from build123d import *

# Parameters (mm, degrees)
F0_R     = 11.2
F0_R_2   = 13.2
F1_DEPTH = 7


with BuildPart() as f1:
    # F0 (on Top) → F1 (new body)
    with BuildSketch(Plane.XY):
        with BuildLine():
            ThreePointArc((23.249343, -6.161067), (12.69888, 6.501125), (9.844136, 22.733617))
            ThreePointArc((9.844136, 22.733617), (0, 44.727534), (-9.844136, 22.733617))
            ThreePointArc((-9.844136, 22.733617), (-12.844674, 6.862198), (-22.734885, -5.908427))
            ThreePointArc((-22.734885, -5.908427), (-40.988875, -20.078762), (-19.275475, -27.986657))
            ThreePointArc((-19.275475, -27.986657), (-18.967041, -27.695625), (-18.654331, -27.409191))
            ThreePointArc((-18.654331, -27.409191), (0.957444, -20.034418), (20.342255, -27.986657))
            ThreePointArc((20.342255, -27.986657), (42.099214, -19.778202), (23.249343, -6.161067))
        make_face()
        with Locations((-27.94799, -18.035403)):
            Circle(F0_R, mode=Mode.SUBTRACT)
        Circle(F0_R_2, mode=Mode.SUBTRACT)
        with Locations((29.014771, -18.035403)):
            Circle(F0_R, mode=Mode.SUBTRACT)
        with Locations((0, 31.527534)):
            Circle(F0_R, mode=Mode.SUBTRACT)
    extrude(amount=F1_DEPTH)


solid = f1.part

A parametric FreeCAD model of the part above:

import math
import FreeCAD as App
import Part
import Sketcher
from FreeCAD import Vector

doc = App.newDocument("Part")
body = doc.addObject("PartDesign::Body", "Body")

sketch1 = body.newObject("Sketcher::SketchObject", "Sketch")
sketch1.AttachmentSupport = (doc.getObject("XY_Plane"), [""])
sketch1.MapMode = "FlatFace"
sketch1.addGeometry([
    Part.ArcOfCircle(Part.Circle(Vector(41.745122, 19.976645, 0), Vector(0, 0, 1), 32.019897), math.radians(175.060612), math.radians(234.715702)),
    Part.ArcOfCircle(Part.Circle(Vector(0, 31.527534, 0), Vector(0, 0, 1), 13.2), math.radians(-41.774903), math.radians(221.774903)),
    Part.ArcOfCircle(Part.Circle(Vector(-44.335074, 21.03489, 0), Vector(0, 0, 1), 34.532745), math.radians(-51.281196), math.radians(2.81962)),
    Part.ArcOfCircle(Part.Circle(Vector(-27.94799, -18.035402, 0), Vector(0, 0, 1), 13.2), math.radians(66.738253), math.radians(311.07214)),
    Part.ArcOfCircle(Part.Circle(Vector(0.533702, -48.671352, 0), Vector(0, 0, 1), 28.640183), math.radians(132.064667), math.radians(133.761401)),
    Part.ArcOfCircle(Part.Circle(Vector(0.533391, -48.670969, 0), Vector(0, 0, 1), 28.63969), math.radians(46.23852), math.radians(132.064719)),
    Part.ArcOfCircle(Part.Circle(Vector(29.014771, -18.035402, 0), Vector(0, 0, 1), 13.2), math.radians(-131.072143), math.radians(115.898284)),
    Part.Circle(Vector(-27.94799, -18.035403, 0), Vector(0, 0, 1), 11.2),
    Part.Circle(Vector(0, 0, 0), Vector(0, 0, 1), 13.2),
    Part.Circle(Vector(29.014771, -18.035403, 0), Vector(0, 0, 1), 11.2),
    Part.Circle(Vector(0, 31.527534, 0), Vector(0, 0, 1), 11.2),
], False)
sketch1.addConstraint([
    Sketcher.Constraint("Coincident", 0, 1, 1, 1),
    Sketcher.Constraint("Coincident", 1, 2, 2, 2),
    Sketcher.Constraint("Coincident", 2, 1, 3, 1),
    Sketcher.Constraint("Coincident", 3, 2, 4, 2),
    Sketcher.Constraint("Coincident", 4, 1, 5, 2),
    Sketcher.Constraint("Coincident", 5, 1, 6, 1),
    Sketcher.Constraint("Coincident", 6, 2, 0, 2),
    Sketcher.Constraint("Coincident", 8, 3, -1, 1),
    Sketcher.Constraint("Coincident", 7, 3, 3, 3),
    Sketcher.Constraint("Coincident", 9, 3, 6, 3),
    Sketcher.Constraint("Coincident", 10, 3, 1, 3),
    Sketcher.Constraint("PointOnObject", 1, 3, -2),
    Sketcher.Constraint("Diameter", 7, 22.4),
    Sketcher.Constraint("Diameter", 8, 26.4),
    Sketcher.Constraint("Diameter", 9, 22.4),
    Sketcher.Constraint("Diameter", 10, 22.4),
    Sketcher.Constraint("Radius", 1, 13.2),
    Sketcher.Constraint("Radius", 3, 13.2),
    Sketcher.Constraint("Radius", 6, 13.2),
    Sketcher.Constraint("Radius", 5, 28.63969),
    Sketcher.Constraint("Radius", 0, 32.019897),
    Sketcher.Constraint("Radius", 2, 34.532745),
    Sketcher.Constraint("Radius", 4, 28.640183),
    Sketcher.Constraint("DistanceX", -1, 1, 4, 3, 0.533702),
    Sketcher.Constraint("DistanceY", -1, 1, 2, 3, 21.03489),
    Sketcher.Constraint("DistanceX", 3, 3, -1, 1, 27.94799),
    Sketcher.Constraint("DistanceY", 4, 3, -1, 1, 48.671352),
    Sketcher.Constraint("DistanceX", -1, 1, 5, 3, 0.533391),
    Sketcher.Constraint("DistanceX", -1, 1, 6, 3, 29.014771),
    Sketcher.Constraint("DistanceX", 4, 1, -1, 1, 18.654331),
    Sketcher.Constraint("DistanceY", 0, 3, 1, 3, 11.55089),
    Sketcher.Constraint("DistanceY", 3, 3, 2, 3, 39.070292),
    Sketcher.Constraint("DistanceX", 4, 3, 0, 3, 41.21142),
    Sketcher.Constraint("DistanceY", 4, 3, 6, 3, 30.635949),
    Sketcher.Constraint("DistanceY", 6, 3, 0, 1, 40.769019),
    Sketcher.Constraint("DistanceX", 2, 1, 1, 2, 12.890749),
])
pad1 = body.newObject("PartDesign::Pad", "Pad")
pad1.Profile = sketch1
pad1.Length = 7

doc.recompute()
